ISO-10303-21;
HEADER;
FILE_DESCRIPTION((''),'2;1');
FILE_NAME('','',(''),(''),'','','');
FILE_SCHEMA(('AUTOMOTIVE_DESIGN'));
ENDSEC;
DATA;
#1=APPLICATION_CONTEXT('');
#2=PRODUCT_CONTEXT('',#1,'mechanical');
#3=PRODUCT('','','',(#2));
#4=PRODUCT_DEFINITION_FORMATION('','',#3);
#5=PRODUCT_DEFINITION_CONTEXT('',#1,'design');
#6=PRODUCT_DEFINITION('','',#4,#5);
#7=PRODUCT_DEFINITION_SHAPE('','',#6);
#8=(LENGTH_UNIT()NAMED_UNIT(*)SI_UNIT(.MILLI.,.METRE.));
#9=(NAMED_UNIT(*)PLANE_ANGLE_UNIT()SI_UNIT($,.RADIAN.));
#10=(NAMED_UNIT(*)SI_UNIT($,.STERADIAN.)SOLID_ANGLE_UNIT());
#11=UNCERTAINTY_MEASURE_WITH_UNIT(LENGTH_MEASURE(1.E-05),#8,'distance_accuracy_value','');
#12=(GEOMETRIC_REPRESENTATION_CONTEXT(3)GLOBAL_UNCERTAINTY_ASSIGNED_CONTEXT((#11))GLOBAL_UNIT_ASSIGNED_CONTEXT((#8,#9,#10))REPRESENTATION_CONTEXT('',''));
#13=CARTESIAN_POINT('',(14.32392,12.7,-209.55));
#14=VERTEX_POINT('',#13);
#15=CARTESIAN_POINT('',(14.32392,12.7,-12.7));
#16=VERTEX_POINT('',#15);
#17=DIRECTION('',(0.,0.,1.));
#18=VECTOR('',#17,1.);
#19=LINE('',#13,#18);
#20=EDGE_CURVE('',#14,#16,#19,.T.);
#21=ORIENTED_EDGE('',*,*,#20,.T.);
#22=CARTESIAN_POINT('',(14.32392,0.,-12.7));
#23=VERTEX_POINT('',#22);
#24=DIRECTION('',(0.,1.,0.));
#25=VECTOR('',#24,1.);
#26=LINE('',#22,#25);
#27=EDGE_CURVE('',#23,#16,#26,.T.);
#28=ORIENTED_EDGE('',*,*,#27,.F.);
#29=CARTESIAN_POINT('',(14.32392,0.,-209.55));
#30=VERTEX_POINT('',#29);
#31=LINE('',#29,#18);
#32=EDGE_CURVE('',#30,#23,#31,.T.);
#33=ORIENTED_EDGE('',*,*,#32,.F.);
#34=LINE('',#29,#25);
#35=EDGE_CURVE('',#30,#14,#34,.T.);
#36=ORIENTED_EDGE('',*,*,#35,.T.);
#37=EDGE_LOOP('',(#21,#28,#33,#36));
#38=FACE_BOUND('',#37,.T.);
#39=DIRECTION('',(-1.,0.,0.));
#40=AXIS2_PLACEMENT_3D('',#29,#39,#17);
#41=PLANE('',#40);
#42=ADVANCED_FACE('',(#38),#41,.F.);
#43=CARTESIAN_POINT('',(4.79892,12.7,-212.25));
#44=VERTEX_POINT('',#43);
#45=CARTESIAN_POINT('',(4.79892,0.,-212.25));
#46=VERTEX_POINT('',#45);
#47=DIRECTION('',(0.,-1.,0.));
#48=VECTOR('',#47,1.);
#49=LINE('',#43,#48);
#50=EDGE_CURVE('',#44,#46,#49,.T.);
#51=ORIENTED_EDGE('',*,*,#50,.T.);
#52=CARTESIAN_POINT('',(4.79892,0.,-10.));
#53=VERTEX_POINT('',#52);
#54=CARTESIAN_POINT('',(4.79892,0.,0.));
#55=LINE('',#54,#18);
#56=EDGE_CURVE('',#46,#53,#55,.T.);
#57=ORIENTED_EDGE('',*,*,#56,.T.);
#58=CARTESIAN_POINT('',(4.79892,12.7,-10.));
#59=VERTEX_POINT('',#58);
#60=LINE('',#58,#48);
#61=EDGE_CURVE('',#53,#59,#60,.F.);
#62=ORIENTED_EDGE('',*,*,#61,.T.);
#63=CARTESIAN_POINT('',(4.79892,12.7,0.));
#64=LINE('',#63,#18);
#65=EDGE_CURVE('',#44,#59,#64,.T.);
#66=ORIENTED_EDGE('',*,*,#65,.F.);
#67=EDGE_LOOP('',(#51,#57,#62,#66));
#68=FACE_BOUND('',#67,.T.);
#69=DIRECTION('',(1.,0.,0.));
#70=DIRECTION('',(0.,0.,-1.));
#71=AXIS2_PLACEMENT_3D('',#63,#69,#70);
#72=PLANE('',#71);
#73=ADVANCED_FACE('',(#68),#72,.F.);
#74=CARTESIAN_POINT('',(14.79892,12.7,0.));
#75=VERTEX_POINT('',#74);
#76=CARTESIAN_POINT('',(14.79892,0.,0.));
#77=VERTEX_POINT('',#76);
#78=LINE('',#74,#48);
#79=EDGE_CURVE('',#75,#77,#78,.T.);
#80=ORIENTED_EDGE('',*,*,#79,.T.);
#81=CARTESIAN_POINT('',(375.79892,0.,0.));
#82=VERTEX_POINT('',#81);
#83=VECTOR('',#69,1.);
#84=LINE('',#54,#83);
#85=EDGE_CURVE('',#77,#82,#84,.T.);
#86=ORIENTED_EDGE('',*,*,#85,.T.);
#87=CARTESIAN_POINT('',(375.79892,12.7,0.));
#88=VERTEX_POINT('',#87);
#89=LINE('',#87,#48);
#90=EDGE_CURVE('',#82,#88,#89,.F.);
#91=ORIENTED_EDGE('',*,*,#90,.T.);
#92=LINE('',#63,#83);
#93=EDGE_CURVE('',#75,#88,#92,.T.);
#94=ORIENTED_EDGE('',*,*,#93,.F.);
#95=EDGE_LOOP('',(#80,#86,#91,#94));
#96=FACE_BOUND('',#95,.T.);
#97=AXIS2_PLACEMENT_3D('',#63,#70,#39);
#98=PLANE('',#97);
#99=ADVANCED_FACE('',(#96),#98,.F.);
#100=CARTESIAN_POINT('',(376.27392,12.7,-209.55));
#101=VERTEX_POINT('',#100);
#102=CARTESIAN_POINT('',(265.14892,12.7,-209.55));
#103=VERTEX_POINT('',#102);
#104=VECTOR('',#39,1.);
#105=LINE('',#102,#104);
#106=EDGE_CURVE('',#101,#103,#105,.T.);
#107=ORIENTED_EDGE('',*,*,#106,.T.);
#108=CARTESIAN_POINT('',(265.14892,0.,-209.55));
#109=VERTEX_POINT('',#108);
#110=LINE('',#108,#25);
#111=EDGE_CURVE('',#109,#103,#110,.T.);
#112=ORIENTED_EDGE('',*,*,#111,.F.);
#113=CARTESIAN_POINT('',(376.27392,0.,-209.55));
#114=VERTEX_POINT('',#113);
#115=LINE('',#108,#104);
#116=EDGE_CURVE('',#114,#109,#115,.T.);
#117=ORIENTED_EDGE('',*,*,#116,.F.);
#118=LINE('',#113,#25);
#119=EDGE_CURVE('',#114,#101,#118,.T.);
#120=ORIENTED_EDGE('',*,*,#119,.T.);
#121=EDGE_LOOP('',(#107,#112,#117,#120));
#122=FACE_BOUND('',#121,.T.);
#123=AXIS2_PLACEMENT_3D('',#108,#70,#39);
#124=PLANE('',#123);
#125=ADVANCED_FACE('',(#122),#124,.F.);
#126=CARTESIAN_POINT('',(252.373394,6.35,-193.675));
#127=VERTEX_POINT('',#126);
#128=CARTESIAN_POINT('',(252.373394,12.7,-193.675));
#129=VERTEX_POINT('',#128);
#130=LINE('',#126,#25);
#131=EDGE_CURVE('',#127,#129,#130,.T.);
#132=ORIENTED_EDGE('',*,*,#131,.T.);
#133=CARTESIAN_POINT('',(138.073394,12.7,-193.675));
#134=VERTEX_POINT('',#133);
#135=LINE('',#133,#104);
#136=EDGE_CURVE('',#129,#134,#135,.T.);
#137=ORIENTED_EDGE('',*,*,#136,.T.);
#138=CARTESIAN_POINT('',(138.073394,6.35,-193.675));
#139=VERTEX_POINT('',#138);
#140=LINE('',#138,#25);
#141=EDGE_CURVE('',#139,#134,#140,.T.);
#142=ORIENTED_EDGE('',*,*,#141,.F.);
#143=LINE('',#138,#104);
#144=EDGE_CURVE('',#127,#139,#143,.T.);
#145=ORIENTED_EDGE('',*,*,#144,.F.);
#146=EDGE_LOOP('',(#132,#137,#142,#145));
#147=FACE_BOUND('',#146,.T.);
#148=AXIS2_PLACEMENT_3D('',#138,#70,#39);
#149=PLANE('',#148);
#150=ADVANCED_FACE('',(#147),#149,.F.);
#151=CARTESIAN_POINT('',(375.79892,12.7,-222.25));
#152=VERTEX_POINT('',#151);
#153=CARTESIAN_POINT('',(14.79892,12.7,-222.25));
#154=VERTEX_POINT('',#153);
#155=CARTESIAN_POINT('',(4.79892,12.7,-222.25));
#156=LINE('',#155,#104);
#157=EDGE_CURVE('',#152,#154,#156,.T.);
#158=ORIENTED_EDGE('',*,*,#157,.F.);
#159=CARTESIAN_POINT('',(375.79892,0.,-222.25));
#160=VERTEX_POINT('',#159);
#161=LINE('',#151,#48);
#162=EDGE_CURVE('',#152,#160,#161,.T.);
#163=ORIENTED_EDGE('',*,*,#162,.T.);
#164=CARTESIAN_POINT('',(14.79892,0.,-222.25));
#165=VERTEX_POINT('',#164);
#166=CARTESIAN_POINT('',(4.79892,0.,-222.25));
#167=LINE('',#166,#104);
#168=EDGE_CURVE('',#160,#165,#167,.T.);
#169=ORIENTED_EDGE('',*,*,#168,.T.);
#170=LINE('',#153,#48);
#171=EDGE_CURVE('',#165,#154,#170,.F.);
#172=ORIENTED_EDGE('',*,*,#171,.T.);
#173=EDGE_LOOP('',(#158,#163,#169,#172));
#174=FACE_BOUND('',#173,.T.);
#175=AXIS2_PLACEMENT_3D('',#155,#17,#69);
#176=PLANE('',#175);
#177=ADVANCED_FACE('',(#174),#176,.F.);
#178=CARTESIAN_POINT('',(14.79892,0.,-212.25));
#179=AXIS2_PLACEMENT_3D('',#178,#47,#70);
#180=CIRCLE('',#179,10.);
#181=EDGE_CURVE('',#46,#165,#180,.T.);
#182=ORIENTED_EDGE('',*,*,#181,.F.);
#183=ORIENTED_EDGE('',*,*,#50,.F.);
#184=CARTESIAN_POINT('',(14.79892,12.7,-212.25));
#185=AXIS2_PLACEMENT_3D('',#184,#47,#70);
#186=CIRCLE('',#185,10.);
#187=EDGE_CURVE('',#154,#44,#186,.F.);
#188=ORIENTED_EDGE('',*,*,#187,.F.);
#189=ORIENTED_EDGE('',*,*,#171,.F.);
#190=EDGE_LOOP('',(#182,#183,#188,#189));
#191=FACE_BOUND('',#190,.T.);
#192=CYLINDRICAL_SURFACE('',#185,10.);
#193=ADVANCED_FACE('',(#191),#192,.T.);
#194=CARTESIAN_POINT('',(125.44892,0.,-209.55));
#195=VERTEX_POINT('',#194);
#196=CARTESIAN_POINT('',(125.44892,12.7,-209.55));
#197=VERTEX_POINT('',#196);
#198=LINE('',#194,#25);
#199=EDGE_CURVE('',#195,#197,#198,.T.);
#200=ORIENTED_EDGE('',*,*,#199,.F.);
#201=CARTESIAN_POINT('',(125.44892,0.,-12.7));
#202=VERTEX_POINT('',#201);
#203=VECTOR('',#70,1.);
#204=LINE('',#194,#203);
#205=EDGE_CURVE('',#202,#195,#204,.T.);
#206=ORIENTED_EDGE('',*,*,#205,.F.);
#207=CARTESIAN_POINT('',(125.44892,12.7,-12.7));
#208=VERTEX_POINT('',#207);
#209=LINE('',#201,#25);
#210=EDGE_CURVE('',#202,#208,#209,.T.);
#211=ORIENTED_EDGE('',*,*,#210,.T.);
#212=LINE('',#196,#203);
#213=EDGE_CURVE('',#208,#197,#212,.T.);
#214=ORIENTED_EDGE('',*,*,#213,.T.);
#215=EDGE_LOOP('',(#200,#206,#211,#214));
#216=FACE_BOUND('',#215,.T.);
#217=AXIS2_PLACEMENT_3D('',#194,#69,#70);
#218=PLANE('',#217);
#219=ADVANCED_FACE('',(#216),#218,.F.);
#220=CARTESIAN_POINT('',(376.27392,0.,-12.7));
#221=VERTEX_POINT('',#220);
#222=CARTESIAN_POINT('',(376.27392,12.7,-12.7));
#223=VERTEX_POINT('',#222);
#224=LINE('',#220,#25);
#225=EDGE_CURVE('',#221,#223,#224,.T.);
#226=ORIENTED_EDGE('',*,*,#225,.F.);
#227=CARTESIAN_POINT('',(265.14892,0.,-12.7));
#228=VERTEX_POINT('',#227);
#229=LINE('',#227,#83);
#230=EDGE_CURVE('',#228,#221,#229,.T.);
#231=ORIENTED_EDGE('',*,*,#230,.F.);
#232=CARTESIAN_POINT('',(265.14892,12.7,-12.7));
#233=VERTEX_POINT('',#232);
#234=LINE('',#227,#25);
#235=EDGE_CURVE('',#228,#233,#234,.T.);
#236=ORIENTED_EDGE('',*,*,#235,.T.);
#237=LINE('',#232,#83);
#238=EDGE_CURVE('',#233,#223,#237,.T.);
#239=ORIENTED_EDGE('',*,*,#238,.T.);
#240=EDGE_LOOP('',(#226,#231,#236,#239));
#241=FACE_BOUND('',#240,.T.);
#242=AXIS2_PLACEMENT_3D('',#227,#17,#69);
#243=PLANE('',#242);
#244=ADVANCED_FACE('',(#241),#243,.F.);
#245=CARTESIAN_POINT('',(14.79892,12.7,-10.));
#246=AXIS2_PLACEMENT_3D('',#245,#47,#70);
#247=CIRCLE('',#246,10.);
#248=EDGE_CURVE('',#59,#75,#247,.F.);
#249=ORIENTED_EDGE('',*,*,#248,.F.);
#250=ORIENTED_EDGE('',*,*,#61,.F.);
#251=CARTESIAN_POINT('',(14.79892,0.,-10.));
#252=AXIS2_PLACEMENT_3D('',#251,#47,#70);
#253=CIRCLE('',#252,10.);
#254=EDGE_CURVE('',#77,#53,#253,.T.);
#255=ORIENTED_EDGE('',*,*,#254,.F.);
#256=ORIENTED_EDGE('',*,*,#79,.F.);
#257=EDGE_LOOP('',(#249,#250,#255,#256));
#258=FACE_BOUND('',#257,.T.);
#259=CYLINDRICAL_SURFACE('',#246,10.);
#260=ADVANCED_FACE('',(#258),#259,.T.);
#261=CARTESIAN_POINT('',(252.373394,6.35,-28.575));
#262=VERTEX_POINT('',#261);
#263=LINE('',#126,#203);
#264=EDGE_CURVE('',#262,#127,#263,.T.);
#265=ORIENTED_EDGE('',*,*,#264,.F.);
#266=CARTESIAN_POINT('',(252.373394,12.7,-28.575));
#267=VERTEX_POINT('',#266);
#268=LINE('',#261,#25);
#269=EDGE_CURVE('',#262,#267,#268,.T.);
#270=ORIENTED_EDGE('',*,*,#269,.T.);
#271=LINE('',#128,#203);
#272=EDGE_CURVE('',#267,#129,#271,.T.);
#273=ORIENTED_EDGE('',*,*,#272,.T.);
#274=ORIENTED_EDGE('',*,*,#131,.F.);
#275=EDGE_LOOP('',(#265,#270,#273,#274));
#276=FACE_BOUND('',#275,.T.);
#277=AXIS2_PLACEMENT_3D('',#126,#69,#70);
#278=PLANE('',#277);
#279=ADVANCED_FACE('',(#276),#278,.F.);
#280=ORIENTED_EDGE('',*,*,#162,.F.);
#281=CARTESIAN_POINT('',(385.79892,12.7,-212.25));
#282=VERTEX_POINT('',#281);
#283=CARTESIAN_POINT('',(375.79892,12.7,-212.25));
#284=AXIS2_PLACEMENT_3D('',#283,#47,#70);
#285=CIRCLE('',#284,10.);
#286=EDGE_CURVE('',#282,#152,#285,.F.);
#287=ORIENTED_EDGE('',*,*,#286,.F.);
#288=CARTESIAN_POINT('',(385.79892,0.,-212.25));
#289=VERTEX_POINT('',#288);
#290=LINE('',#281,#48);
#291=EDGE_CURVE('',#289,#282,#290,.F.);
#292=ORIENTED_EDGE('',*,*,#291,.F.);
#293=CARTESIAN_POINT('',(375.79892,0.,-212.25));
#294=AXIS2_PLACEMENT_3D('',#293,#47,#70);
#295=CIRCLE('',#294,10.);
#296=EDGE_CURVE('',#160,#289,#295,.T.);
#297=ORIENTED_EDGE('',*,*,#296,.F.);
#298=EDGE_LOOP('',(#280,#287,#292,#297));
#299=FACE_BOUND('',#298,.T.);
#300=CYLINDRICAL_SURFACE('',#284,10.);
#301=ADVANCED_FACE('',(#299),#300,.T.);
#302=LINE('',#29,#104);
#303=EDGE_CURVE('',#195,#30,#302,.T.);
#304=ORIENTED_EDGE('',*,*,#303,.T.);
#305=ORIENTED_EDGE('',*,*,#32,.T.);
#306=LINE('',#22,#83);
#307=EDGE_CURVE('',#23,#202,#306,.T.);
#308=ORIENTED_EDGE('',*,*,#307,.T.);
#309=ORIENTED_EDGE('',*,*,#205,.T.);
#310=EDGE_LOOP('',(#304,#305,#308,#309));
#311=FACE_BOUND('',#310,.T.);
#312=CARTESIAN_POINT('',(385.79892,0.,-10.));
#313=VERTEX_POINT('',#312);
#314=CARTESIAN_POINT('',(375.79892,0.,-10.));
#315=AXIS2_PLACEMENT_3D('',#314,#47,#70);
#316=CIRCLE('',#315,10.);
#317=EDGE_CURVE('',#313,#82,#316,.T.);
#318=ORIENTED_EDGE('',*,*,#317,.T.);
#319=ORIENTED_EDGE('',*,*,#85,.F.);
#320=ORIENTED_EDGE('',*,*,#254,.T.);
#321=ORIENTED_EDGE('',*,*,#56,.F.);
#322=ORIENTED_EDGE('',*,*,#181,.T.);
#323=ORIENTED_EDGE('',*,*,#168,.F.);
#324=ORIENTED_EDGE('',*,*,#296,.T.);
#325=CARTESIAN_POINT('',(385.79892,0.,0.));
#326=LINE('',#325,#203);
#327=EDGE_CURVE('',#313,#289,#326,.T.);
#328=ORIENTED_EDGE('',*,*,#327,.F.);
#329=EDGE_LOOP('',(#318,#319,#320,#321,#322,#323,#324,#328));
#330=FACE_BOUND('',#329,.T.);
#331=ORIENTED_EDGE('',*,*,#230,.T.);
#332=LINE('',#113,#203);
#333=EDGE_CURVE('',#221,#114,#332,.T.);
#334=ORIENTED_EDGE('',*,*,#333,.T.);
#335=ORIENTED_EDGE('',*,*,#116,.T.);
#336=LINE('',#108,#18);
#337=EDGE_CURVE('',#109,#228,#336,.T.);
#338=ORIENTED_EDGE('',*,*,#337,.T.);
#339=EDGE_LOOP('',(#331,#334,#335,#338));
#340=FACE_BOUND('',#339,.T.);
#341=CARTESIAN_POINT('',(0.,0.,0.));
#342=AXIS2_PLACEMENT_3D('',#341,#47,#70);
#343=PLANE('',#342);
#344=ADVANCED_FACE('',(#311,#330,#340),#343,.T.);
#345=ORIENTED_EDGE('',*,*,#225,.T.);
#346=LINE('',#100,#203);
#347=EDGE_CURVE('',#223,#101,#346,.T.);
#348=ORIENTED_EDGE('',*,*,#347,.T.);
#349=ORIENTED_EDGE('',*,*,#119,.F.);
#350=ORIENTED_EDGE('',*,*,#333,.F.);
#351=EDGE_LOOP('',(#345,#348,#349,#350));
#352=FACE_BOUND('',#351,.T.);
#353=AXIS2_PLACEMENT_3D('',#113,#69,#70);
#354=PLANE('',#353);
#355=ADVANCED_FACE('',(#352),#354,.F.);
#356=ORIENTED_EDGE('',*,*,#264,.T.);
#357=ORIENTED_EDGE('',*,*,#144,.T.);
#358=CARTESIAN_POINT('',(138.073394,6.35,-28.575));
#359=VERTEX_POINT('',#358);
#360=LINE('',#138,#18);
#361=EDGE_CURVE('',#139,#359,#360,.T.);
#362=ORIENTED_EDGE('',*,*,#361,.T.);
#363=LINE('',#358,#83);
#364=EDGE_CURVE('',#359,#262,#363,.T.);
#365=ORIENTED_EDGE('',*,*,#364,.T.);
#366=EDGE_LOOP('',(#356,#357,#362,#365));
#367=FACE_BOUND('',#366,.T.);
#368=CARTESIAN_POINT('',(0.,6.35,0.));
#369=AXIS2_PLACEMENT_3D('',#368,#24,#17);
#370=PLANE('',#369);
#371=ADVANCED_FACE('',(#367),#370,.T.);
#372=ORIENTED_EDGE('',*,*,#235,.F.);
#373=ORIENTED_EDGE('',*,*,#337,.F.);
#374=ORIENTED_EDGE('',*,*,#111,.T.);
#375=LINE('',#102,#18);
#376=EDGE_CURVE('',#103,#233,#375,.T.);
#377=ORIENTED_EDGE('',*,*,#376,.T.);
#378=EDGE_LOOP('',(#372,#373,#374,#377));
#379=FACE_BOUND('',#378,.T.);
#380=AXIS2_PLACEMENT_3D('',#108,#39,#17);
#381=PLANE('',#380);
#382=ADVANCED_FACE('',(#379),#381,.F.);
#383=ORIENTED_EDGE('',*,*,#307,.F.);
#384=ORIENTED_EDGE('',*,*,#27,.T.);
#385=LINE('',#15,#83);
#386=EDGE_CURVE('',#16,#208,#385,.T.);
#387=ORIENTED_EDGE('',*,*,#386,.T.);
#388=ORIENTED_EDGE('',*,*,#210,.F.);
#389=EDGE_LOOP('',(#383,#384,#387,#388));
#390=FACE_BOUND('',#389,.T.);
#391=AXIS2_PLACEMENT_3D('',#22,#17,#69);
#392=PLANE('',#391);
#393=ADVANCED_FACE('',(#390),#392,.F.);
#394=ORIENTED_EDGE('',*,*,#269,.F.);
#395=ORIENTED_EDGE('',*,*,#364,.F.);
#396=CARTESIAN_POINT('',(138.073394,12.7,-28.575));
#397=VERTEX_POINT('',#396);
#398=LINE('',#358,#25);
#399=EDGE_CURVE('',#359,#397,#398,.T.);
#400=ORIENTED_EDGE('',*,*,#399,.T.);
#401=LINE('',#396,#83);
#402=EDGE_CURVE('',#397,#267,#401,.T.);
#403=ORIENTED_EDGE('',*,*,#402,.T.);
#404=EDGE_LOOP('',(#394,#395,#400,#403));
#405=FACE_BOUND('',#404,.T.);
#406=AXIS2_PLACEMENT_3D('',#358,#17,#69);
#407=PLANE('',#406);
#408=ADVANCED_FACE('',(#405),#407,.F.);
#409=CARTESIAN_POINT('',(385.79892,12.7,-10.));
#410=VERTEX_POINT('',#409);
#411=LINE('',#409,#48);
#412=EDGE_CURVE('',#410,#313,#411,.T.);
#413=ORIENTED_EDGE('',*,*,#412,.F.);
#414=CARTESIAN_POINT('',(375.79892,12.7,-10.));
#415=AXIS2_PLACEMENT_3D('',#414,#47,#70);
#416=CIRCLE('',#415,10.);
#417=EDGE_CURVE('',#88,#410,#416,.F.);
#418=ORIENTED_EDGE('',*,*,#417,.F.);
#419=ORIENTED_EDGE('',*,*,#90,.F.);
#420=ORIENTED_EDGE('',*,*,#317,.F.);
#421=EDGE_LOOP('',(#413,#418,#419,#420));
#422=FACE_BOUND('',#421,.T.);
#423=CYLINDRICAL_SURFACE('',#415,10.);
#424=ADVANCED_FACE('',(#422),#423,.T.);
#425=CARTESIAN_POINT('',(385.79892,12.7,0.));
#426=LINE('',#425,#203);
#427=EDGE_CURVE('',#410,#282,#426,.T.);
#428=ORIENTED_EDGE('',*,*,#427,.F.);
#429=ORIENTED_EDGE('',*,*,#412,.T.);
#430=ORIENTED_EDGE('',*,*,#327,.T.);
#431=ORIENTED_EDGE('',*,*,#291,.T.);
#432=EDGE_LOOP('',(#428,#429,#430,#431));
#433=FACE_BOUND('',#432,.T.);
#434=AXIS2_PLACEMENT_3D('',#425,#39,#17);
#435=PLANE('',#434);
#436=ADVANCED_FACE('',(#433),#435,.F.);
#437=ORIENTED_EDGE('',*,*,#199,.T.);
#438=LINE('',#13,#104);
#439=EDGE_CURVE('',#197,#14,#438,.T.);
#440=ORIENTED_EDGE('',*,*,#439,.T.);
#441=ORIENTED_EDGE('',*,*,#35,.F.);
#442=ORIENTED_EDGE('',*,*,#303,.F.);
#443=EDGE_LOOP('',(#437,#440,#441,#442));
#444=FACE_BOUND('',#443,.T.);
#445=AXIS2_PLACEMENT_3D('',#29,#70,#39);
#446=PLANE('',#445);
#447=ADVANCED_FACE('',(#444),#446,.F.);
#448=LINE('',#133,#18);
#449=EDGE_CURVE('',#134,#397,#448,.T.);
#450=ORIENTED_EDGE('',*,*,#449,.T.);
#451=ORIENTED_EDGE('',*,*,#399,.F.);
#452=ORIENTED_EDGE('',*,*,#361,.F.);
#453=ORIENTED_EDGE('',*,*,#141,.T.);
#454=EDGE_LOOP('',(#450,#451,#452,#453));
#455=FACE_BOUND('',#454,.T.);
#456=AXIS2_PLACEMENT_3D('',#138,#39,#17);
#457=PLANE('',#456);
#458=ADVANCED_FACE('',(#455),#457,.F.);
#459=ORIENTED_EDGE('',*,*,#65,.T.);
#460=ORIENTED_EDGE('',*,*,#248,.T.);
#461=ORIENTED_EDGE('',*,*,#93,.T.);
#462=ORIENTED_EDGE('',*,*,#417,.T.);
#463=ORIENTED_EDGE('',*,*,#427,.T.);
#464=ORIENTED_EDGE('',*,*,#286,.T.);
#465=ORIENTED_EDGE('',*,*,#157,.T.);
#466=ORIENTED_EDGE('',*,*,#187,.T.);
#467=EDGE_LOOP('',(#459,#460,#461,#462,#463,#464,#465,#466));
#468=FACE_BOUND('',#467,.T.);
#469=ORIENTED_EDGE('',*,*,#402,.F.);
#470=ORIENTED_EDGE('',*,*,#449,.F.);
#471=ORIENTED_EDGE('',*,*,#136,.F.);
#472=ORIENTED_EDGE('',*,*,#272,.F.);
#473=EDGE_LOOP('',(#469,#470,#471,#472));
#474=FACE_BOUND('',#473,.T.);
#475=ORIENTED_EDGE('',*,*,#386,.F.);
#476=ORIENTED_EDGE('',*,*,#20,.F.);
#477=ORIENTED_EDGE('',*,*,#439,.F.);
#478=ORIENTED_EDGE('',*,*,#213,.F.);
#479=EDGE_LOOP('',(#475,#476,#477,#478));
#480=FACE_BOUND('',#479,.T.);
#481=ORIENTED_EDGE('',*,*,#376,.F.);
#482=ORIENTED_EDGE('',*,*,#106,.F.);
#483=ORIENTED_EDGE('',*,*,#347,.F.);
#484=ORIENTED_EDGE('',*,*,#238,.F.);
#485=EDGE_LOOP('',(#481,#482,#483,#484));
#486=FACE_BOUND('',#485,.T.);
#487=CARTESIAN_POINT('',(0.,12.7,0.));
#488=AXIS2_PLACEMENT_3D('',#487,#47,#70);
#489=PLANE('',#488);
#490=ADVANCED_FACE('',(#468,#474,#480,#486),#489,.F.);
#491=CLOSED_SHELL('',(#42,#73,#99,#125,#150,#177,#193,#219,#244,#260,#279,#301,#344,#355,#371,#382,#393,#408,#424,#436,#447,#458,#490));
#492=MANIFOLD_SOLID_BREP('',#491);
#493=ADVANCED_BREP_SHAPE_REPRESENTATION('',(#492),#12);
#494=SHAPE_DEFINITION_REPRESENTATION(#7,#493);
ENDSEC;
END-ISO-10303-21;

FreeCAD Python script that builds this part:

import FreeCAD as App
import Part
import Sketcher
Q = App.Units.Quantity


def edges_at(feature, points):
    """Names of the edges that pass closest to the given points."""
    edges = feature.Shape.Edges
    near = lambda p: min(range(len(edges)), key=lambda i: edges[i].distToShape(Part.Vertex(*p))[0])
    return sorted({f"Edge{near(p) + 1}" for p in points})


def add_polygon(sketch, points):
    """Adds a closed chain of lines whose ends are joined by coincident constraints."""
    first, n = sketch.GeometryCount, len(points)
    for a, b in zip(points, points[1:] + points[:1]):
        sketch.addGeometry(Part.LineSegment(App.Vector(*a, 0), App.Vector(*b, 0)), False)
    for i in range(n):
        sketch.addConstraint(Sketcher.Constraint("Coincident", first + i, 2, first + (i + 1) % n, 1))

doc = App.newDocument("Part")
body = doc.addObject("PartDesign::Body", "Body")

# Sketch on XZ plane
sketch1 = body.newObject("Sketcher::SketchObject", "Sketch")
sketch1.AttachmentSupport = (doc.getObject("XZ_Plane"), [""])
sketch1.MapMode = "FlatFace"
add_polygon(sketch1, [(5, -222), (5, 0), (386, 0), (386, -222)])  # lines 0-3
sketch1.addConstraint([
    Sketcher.Constraint("Vertical", 0),
    Sketcher.Constraint("Horizontal", 1),
    Sketcher.Constraint("Vertical", 2),
    Sketcher.Constraint("Horizontal", 3),
    Sketcher.Constraint("PointOnObject", 0, 2, -1),
    Sketcher.Constraint("DistanceX", 1, 1, 1, 2, Q("15 in")),
    Sketcher.Constraint("DistanceY", 0, 1, 0, 2, Q("8.75 in")),
    Sketcher.Constraint("DistanceX", -1, 1, 0, 2, Q("4.79892 mm")),
])
pad1 = body.newObject("PartDesign::Pad", "Pad")
pad1.Profile = sketch1
pad1.Length = Q("0.5 in")
pad1.Reversed = True

# Sketch on XZ plane
sketch2 = body.newObject("Sketcher::SketchObject", "Sketch001")
sketch2.AttachmentSupport = (doc.getObject("XZ_Plane"), [""])
sketch2.MapMode = "FlatFace"
sketch2.AttachmentOffset = App.Placement(App.Vector(0, 0, -0.5 * 25.4), App.Rotation())
add_polygon(sketch2, [(14, -210), (14, -13), (125, -13), (125, -210)])  # lines 0-3
add_polygon(sketch2, [(265, -210), (265, -13), (376, -13), (376, -210)])  # lines 4-7
sketch2.addConstraint([
    Sketcher.Constraint("Vertical", 0),
    Sketcher.Constraint("Horizontal", 1),
    Sketcher.Constraint("Vertical", 2),
    Sketcher.Constraint("Horizontal", 3),
    Sketcher.Constraint("Vertical", 4),
    Sketcher.Constraint("Horizontal", 5),
    Sketcher.Constraint("Vertical", 6),
    Sketcher.Constraint("Horizontal", 7),
    Sketcher.Constraint("Horizontal", 1, 2, 4, 2),
    Sketcher.Constraint("Horizontal", 3, 2, 6, 2),
    Sketcher.Constraint("Equal", 3, 5),
    Sketcher.Constraint("DistanceY", 0, 1, 0, 2, Q("7.75 in")),
    Sketcher.Constraint("DistanceY", 0, 2, -1, 1, Q("0.5 in")),
    Sketcher.Constraint("DistanceX", 1, 2, 4, 2, Q("5.5 in")),
    Sketcher.Constraint("DistanceX", 1, 1, 1, 2, Q("4.375 in")),
    Sketcher.Constraint("DistanceX", -1, 1, 0, 2, Q("14.32392 mm")),
])
pocket1 = body.newObject("PartDesign::Pocket", "Pocket")
pocket1.Profile = sketch2
pocket1.Length = Q("0.5 in")
pocket1.Reversed = True

# Sketch on XZ plane
sketch3 = body.newObject("Sketcher::SketchObject", "Sketch002")
sketch3.AttachmentSupport = (doc.getObject("XZ_Plane"), [""])
sketch3.MapMode = "FlatFace"
sketch3.AttachmentOffset = App.Placement(App.Vector(0, 0, -0.5 * 25.4), App.Rotation())
add_polygon(sketch3, [(138, -194), (138, -29), (252, -29), (252, -194)])  # lines 0-3
sketch3.addConstraint([
    Sketcher.Constraint("Vertical", 0),
    Sketcher.Constraint("Horizontal", 1),
    Sketcher.Constraint("Vertical", 2),
    Sketcher.Constraint("Horizontal", 3),
    Sketcher.Constraint("DistanceX", 1, 1, 1, 2, Q("4.5 in")),
    Sketcher.Constraint("DistanceY", 0, 1, 0, 2, Q("6.5 in")),
    Sketcher.Constraint("DistanceY", 0, 2, -1, 1, Q("1.125 in")),
    Sketcher.Constraint("DistanceX", -1, 1, 0, 2, Q("138.073394 mm")),
])
pocket2 = body.newObject("PartDesign::Pocket", "Pocket001")
pocket2.Profile = sketch3
pocket2.Length = Q("0.25 in")
pocket2.Reversed = True
doc.recompute()

fillet = body.newObject("PartDesign::Fillet", "Fillet")
fillet.Base = (pocket2, edges_at(pocket2, [
    (4.799, 6.35, -222.25),
    (385.799, 6.35, -222.25),
    (385.799, 6.35, 0),
    (4.799, 6.35, 0),
]))
fillet.Radius = 10

doc.recompute()
